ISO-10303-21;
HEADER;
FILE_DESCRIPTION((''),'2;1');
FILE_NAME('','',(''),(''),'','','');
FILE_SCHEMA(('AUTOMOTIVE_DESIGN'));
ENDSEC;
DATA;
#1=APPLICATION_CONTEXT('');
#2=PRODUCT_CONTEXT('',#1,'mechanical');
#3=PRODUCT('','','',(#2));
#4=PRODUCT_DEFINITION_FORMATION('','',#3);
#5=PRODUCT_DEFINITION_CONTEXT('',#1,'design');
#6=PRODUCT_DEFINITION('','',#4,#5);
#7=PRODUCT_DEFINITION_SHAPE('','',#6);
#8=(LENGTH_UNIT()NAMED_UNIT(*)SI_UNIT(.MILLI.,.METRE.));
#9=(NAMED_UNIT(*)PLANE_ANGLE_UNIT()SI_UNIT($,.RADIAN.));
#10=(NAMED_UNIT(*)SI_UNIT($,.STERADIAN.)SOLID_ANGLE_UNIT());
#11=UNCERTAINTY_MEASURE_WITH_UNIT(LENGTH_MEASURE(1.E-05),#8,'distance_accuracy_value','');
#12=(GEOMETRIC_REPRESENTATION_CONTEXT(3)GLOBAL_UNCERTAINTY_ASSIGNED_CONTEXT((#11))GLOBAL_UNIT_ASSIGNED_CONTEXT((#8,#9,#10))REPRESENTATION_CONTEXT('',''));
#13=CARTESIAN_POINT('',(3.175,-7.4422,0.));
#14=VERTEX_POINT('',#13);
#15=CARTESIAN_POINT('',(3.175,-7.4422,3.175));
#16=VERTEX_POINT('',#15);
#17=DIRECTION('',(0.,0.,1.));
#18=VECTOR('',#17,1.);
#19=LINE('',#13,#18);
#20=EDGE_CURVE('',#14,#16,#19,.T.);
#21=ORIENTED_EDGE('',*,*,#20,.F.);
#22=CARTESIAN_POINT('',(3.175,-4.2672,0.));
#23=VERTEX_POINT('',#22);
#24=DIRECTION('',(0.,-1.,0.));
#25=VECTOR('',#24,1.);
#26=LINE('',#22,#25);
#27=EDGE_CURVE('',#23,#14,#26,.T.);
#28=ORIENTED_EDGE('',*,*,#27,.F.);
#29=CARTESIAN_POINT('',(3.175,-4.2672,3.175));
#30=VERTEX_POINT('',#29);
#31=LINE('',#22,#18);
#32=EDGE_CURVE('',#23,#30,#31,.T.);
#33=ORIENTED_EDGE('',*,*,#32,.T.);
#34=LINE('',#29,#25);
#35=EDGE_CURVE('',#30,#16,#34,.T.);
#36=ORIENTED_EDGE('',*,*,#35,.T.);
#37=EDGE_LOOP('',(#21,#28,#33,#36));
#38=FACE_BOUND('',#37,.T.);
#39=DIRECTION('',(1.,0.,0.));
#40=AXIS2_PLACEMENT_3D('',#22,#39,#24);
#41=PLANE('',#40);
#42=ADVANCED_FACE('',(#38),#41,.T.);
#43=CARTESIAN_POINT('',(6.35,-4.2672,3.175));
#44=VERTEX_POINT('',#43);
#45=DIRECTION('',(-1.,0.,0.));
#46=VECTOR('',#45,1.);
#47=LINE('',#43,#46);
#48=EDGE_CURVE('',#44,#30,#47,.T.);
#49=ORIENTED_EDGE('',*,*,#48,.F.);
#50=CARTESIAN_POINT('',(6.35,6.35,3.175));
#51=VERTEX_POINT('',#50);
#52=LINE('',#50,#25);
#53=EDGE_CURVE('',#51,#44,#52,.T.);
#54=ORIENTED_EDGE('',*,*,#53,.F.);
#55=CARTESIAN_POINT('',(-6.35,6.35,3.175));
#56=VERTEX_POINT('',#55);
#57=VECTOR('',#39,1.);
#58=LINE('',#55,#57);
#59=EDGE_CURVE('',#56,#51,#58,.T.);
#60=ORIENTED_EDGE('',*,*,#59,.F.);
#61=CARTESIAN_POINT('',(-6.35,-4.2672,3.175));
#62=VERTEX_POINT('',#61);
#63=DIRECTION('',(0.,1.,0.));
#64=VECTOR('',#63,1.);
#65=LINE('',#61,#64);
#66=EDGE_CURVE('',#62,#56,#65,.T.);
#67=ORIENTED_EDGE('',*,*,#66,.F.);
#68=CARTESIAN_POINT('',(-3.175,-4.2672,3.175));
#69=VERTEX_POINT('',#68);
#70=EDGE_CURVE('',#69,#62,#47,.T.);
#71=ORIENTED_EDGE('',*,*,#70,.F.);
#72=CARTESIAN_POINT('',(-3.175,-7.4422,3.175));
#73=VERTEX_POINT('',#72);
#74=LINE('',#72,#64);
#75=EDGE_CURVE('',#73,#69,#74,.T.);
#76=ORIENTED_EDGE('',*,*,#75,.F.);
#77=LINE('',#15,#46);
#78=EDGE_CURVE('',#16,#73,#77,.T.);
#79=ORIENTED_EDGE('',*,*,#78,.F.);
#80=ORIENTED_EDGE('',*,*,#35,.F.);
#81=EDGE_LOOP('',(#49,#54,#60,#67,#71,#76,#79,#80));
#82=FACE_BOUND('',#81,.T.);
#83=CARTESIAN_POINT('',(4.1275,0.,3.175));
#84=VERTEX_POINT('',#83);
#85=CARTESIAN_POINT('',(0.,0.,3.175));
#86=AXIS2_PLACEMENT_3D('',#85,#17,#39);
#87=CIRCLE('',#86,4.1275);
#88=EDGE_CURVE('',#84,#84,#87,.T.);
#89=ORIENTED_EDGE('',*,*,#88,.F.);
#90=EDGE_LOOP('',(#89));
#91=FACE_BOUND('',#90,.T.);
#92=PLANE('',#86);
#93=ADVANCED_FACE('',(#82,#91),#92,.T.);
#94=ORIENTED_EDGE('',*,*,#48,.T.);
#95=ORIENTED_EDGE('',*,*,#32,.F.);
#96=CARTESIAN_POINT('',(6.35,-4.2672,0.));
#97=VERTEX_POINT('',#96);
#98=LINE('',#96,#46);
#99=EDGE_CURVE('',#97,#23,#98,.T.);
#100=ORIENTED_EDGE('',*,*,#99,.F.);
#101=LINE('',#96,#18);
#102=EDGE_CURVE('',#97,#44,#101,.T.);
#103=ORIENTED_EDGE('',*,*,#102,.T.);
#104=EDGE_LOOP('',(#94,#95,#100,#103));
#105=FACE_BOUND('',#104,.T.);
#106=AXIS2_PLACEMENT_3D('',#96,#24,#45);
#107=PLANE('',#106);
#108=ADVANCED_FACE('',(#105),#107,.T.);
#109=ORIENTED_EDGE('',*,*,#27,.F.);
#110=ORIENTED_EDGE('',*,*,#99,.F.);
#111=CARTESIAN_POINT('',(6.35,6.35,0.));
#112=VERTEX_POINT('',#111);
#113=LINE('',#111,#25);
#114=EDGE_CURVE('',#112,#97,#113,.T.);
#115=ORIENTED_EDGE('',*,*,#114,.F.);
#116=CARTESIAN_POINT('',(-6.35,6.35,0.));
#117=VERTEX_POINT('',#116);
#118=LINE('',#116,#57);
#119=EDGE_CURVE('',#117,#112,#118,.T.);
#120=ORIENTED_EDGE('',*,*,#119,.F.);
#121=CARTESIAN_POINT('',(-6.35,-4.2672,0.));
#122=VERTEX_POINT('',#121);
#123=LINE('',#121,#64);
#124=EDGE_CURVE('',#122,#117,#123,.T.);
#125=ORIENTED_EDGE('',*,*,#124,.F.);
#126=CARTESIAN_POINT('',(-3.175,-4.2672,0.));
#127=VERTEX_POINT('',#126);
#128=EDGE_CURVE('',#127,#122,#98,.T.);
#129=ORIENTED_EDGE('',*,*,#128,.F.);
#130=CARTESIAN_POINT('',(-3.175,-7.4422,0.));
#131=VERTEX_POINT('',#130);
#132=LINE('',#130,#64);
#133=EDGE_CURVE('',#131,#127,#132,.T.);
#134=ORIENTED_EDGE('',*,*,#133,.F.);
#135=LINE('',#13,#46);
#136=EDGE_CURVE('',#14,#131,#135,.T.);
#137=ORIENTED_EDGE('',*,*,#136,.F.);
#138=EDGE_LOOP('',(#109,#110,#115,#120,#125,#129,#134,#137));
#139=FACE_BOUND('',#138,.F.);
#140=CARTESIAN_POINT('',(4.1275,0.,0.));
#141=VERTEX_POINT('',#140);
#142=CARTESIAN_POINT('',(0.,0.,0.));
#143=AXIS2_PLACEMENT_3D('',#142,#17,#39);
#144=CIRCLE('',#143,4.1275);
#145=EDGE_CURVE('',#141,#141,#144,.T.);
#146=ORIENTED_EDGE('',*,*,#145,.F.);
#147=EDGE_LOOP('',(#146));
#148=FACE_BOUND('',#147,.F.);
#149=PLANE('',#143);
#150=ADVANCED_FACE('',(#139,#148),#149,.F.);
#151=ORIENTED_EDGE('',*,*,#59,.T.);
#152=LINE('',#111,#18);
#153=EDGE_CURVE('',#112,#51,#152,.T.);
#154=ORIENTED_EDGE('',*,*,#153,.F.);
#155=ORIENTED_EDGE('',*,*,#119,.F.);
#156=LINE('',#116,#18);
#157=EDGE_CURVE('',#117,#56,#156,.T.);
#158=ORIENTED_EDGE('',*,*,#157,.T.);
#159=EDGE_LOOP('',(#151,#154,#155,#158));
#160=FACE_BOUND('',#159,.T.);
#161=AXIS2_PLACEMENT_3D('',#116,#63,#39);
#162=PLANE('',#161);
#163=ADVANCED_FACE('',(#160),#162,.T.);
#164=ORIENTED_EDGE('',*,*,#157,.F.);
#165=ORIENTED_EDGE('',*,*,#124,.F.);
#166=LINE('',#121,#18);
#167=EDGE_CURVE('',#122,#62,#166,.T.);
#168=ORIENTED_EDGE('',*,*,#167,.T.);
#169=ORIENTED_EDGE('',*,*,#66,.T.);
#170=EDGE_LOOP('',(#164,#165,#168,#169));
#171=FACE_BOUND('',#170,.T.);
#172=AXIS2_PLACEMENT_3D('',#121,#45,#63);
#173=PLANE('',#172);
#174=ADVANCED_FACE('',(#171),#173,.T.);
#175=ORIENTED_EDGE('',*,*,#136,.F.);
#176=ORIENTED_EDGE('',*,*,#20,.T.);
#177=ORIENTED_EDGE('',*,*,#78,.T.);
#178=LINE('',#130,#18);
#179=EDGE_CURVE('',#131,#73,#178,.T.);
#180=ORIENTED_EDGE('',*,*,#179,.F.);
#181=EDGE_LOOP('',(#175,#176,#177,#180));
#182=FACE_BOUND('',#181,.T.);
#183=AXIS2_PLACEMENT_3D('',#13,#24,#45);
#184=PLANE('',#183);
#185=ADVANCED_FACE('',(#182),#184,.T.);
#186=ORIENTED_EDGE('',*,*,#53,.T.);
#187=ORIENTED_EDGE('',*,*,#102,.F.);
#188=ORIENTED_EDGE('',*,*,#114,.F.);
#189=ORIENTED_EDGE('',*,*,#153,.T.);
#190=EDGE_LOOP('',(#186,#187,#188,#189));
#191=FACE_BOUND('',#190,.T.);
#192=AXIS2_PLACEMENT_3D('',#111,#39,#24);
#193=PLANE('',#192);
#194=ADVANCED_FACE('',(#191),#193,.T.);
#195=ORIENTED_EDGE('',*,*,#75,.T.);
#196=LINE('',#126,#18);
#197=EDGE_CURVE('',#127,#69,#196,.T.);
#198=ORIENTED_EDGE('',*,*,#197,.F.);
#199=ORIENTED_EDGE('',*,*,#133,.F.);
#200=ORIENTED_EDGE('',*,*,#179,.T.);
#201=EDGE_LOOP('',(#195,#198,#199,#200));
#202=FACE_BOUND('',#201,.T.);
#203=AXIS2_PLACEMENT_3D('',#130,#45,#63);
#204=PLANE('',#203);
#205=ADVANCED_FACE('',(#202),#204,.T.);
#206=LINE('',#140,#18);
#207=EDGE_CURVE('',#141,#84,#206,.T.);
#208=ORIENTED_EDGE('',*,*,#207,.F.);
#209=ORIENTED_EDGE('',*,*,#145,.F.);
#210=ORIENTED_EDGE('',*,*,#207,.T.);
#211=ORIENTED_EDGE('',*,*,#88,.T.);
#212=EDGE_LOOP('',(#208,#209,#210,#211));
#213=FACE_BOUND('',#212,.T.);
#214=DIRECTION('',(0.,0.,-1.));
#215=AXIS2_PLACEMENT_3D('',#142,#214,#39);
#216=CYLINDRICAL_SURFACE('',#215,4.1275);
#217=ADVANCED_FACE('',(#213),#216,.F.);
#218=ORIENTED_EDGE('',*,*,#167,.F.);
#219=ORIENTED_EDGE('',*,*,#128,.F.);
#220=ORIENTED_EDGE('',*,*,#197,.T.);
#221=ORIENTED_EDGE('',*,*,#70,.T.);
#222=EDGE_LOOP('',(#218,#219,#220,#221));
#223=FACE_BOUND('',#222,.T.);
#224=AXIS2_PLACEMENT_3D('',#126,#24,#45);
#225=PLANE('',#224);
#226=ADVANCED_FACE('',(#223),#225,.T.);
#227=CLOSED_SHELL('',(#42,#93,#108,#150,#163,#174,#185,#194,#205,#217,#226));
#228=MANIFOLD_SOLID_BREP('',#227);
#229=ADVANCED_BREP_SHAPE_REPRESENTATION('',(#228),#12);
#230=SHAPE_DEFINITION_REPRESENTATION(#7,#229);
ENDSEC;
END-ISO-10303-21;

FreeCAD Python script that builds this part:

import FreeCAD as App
import Part
import Sketcher
Q = App.Units.Quantity


def add_polygon(sketch, points):
    """Adds a closed chain of lines whose ends are joined by coincident constraints."""
    first, n = sketch.GeometryCount, len(points)
    for a, b in zip(points, points[1:] + points[:1]):
        sketch.addGeometry(Part.LineSegment(App.Vector(*a, 0), App.Vector(*b, 0)), False)
    for i in range(n):
        sketch.addConstraint(Sketcher.Constraint("Coincident", first + i, 2, first + (i + 1) % n, 1))

doc = App.newDocument("Part")
body = doc.addObject("PartDesign::Body", "Body")

sketch1 = doc.addObject("Sketcher::SketchObject", "Sketch")
body.addObject(sketch1)
sketch1.AttachmentSupport = (doc.XY_Plane, [""])
sketch1.MapMode = "FlatFace"
add_polygon(sketch1, [(6.3, 6.3), (-6.3, 6.3), (-6.3, -4.3), (-3.2, -4.3), (-3.2, -7.4), (3.2, -7.4), (3.2, -4.3), (6.3, -4.3)])
sketch1.addGeometry(Part.Circle(App.Vector(0, 0, 0), App.Vector(0, 0, 1), 4.1), False)
sketch1.addConstraint(Sketcher.Constraint("Horizontal", 0))
sketch1.addConstraint(Sketcher.Constraint("Vertical", 1))
sketch1.addConstraint(Sketcher.Constraint("Horizontal", 2))
sketch1.addConstraint(Sketcher.Constraint("Vertical", 3))
sketch1.addConstraint(Sketcher.Constraint("Horizontal", 4))
sketch1.addConstraint(Sketcher.Constraint("Vertical", 5))
sketch1.addConstraint(Sketcher.Constraint("Horizontal", 6))
sketch1.addConstraint(Sketcher.Constraint("Vertical", 7))
sketch1.addConstraint(Sketcher.Constraint("Coincident", 8, 3, -1, 1))
sketch1.addConstraint(Sketcher.Constraint("Symmetric", 2, 2, 5, 2, -2))
sketch1.addConstraint(Sketcher.Constraint("Equal", 2, 6))
sketch1.addConstraint(Sketcher.Constraint("Equal", 6, 3))
sketch1.addConstraint(Sketcher.Constraint("Diameter", 8, Q("0.325 in")))
sketch1.addConstraint(Sketcher.Constraint("DistanceX", 4, 1, 4, 2, Q("0.25 in")))
sketch1.addConstraint(Sketcher.Constraint("DistanceX", 2, 1, 2, 2, Q("0.125 in")))
sketch1.addConstraint(Sketcher.Constraint("DistanceY", -1, 1, 0, 2, Q("0.25 in")))
sketch1.addConstraint(Sketcher.Constraint("DistanceY", 1, 2, -1, 1, Q("0.168 in")))
pad1 = doc.addObject("PartDesign::Pad", "Pad")
body.addObject(pad1)
pad1.Profile = sketch1
pad1.Length = Q("0.125 in")

doc.recompute()
